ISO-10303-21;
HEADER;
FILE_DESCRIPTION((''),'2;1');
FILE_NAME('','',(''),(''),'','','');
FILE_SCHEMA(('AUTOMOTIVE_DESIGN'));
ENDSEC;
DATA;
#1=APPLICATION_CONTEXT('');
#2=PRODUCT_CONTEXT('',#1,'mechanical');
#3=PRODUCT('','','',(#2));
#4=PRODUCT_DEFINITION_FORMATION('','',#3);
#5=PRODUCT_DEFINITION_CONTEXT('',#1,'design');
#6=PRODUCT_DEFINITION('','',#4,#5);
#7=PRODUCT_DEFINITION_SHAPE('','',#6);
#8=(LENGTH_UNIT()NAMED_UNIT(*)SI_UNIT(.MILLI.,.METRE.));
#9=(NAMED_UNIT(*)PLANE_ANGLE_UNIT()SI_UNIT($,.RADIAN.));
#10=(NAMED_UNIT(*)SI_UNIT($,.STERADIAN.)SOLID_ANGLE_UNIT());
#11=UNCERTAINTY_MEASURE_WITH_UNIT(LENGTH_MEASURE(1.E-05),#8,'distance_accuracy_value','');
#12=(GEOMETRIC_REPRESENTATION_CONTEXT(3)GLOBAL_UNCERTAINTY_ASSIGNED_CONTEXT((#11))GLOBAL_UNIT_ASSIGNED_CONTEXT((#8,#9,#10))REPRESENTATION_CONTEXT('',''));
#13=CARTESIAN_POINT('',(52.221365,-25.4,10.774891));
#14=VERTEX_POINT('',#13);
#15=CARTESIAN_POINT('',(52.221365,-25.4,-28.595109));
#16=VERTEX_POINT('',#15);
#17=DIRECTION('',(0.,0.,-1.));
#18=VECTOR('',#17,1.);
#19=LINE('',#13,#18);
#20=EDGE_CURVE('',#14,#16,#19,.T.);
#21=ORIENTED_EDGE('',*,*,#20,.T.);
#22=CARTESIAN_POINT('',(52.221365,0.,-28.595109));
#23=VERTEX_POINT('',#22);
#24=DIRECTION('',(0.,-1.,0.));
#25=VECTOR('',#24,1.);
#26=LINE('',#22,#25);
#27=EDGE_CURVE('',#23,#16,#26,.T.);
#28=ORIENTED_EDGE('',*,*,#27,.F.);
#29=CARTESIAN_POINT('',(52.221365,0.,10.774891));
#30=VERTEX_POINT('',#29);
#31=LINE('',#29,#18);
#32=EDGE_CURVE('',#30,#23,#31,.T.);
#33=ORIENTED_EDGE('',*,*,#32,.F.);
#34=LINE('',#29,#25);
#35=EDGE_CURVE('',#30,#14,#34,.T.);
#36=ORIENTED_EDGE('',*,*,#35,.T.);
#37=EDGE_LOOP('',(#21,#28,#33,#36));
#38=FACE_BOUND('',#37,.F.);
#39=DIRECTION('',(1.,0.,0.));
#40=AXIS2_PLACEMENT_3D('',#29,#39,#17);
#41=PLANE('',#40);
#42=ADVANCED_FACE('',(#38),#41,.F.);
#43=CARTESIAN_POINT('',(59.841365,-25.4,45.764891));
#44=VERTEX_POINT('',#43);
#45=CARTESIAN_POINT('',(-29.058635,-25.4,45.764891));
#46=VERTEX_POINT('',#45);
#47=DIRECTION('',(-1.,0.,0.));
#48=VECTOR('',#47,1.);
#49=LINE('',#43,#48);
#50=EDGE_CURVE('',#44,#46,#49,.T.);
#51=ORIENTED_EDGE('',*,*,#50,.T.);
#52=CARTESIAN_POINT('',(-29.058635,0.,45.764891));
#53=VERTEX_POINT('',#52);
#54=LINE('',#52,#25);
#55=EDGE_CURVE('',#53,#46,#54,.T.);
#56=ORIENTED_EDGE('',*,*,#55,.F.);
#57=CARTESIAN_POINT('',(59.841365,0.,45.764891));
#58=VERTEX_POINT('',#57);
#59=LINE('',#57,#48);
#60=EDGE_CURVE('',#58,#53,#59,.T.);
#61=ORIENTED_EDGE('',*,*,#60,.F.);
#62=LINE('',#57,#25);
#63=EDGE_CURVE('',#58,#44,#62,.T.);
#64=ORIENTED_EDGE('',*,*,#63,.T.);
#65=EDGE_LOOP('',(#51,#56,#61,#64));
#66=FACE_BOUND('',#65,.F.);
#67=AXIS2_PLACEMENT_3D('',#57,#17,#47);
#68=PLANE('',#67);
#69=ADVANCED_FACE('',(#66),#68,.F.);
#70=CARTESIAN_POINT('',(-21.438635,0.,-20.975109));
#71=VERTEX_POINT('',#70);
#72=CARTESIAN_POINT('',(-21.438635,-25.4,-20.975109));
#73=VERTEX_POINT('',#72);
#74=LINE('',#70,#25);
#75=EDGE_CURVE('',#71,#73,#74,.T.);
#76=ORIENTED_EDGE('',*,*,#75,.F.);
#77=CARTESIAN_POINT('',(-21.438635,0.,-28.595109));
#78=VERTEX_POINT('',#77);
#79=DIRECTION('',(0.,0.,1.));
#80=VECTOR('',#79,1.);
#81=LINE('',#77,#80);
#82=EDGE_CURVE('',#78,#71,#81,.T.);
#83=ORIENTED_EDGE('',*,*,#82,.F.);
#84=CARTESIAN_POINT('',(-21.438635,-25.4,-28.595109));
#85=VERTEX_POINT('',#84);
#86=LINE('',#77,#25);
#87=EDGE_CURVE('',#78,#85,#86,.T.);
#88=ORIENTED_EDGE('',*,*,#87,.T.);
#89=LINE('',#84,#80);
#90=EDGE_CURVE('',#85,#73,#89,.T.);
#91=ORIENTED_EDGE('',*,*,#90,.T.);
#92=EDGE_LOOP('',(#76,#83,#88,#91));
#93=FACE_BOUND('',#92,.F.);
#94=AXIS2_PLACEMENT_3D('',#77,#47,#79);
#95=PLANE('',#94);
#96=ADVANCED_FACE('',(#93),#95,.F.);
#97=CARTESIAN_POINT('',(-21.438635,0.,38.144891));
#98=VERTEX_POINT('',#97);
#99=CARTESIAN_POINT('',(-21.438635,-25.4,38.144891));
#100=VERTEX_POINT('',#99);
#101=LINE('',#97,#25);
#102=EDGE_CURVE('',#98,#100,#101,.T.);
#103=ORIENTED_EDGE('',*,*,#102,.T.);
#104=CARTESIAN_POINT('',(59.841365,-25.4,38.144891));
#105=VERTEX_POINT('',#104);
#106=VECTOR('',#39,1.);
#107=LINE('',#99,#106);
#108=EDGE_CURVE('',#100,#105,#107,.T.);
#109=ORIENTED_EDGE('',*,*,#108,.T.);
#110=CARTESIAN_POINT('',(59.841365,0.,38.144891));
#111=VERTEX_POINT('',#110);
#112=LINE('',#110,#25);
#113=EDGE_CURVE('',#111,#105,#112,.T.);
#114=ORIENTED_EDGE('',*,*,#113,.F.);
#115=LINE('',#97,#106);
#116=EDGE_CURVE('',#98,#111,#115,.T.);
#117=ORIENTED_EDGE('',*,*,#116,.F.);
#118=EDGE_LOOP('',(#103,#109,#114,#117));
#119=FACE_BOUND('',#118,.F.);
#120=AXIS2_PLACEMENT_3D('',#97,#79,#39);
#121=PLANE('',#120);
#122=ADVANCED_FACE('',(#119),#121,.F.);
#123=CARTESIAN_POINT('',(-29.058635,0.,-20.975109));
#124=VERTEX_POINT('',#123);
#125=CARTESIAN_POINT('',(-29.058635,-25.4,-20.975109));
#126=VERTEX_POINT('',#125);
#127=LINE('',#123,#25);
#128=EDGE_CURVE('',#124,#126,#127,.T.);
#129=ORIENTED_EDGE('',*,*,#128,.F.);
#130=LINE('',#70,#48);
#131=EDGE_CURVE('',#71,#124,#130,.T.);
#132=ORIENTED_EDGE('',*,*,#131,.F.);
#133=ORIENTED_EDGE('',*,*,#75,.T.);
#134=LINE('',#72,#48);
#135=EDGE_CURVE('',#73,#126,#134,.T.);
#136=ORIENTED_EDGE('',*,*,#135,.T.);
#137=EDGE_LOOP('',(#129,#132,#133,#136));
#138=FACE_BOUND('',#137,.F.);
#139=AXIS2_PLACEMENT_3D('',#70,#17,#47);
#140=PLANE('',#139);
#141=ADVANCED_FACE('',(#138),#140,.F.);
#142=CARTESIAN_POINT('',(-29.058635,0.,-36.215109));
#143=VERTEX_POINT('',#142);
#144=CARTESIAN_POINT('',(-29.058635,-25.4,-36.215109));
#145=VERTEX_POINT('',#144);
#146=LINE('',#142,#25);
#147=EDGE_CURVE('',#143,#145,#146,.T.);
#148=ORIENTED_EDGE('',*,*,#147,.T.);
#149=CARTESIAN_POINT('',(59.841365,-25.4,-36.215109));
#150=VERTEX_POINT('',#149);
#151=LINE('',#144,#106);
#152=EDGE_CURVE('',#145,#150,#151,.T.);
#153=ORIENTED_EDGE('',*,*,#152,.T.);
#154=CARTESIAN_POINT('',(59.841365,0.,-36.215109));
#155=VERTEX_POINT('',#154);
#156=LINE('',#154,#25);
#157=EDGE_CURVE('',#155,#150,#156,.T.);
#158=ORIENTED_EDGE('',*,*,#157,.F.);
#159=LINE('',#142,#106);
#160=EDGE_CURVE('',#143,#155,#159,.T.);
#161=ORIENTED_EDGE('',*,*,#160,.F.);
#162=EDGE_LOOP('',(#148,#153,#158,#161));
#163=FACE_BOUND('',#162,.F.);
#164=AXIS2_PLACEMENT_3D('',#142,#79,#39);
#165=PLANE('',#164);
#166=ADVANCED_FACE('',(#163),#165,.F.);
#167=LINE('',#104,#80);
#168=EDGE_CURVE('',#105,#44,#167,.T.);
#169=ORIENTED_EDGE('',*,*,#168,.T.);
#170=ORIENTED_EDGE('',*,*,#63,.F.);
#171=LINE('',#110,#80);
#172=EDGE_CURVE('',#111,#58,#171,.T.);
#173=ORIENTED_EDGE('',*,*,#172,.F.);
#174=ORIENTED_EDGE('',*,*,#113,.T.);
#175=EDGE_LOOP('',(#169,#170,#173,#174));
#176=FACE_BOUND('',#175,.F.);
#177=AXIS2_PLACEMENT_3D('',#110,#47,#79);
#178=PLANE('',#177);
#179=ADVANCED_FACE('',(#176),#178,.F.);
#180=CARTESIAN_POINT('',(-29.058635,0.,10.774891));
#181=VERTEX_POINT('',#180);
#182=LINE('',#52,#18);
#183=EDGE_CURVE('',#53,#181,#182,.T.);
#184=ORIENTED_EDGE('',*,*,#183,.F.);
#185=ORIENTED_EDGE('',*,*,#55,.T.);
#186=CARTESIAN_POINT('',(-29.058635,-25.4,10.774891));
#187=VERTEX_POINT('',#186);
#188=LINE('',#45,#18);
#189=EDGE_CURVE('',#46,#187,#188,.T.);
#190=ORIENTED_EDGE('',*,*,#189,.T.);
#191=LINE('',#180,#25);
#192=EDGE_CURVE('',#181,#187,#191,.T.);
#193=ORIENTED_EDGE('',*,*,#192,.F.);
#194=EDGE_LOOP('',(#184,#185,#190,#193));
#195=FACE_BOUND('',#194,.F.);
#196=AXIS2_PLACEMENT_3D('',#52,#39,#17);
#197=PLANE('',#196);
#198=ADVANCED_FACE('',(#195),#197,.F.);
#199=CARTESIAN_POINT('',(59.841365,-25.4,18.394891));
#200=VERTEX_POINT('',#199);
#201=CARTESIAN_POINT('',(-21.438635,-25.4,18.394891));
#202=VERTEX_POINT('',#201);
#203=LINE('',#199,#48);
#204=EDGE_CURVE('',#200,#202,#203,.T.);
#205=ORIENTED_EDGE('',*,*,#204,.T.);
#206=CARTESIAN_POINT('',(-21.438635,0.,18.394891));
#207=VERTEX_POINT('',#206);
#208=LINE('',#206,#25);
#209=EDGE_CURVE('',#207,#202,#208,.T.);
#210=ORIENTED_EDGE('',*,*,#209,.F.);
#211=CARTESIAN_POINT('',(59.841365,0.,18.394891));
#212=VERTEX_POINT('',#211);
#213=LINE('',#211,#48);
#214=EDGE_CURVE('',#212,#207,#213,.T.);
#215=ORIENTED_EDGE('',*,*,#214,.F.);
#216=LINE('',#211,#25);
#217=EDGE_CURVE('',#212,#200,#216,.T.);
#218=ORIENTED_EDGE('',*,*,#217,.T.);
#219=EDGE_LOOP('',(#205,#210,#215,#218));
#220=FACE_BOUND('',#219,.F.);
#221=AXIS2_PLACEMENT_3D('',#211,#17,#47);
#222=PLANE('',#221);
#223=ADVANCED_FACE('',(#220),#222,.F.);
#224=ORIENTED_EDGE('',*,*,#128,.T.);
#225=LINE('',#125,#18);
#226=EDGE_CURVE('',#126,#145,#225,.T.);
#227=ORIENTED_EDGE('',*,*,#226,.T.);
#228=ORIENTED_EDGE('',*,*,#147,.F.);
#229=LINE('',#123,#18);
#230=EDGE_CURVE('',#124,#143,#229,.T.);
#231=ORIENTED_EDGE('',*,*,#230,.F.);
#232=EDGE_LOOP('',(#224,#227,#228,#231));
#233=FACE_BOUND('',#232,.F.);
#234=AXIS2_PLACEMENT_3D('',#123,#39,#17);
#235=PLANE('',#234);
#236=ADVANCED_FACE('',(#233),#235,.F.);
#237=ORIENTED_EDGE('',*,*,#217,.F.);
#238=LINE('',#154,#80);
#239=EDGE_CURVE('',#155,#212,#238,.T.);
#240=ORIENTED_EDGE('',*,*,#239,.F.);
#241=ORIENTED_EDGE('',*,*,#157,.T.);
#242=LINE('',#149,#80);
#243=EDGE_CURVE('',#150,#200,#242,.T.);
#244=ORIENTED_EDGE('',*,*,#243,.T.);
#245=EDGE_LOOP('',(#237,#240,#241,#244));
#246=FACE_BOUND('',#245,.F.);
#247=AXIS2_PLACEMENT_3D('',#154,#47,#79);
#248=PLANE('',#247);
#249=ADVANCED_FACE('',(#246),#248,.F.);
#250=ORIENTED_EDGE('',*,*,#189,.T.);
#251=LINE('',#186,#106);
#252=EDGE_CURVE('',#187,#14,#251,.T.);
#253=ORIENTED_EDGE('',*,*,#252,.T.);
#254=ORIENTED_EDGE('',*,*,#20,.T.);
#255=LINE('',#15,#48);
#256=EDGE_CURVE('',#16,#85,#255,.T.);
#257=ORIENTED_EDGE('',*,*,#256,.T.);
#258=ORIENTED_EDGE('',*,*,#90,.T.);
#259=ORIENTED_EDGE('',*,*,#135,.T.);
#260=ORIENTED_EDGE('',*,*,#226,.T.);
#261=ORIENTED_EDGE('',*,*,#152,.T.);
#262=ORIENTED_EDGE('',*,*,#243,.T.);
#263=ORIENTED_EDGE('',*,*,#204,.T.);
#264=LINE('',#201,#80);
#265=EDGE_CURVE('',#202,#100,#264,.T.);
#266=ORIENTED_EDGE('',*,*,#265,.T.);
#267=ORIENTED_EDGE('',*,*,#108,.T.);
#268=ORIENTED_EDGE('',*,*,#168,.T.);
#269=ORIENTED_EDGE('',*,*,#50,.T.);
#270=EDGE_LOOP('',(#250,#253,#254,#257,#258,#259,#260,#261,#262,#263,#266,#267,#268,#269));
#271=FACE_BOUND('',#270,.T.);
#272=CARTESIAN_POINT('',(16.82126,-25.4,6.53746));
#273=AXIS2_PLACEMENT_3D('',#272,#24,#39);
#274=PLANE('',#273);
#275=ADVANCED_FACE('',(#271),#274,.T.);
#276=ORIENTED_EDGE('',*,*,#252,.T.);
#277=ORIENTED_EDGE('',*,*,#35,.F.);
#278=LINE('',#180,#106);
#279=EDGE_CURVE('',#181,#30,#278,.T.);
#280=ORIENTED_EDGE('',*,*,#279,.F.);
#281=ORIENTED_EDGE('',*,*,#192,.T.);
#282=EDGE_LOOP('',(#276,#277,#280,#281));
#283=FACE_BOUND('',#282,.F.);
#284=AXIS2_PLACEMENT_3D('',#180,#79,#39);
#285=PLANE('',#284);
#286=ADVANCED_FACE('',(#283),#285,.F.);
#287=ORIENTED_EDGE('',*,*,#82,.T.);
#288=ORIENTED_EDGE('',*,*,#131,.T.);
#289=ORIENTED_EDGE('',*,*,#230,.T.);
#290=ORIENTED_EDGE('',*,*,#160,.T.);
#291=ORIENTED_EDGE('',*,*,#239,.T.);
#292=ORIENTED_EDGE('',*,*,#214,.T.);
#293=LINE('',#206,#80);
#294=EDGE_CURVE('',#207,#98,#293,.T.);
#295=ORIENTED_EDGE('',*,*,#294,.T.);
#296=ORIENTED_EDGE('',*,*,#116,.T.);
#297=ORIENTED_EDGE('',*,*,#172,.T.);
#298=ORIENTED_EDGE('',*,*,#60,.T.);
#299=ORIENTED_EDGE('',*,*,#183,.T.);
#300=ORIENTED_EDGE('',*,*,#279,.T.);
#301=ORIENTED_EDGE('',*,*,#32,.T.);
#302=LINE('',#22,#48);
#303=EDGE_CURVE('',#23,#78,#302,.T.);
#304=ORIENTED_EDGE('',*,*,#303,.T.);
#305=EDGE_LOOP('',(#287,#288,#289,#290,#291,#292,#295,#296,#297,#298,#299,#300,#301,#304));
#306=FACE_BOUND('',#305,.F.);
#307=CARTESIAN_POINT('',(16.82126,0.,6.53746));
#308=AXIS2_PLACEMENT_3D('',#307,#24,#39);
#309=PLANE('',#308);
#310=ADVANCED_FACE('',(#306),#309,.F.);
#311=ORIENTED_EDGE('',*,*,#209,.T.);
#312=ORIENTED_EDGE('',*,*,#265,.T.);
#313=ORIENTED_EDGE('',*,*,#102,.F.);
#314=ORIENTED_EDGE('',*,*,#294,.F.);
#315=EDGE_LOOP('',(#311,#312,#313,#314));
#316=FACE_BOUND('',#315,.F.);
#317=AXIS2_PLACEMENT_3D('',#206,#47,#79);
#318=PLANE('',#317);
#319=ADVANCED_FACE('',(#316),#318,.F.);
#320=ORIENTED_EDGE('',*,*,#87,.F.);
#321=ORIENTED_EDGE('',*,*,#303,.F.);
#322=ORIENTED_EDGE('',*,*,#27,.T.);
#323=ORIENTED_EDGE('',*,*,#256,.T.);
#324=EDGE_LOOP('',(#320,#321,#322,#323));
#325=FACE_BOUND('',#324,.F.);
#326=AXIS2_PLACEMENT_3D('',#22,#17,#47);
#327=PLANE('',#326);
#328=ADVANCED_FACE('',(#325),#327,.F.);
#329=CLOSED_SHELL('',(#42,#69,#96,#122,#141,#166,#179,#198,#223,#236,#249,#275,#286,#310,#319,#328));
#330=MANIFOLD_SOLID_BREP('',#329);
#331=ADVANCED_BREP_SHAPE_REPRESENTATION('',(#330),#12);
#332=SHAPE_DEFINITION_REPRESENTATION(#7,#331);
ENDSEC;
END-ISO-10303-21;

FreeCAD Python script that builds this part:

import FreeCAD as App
import Part
import Sketcher

V = App.Vector
Q = App.Units.Quantity


def add_polygon(sketch, points):
    """Adds a closed chain of lines whose ends are joined by coincident constraints."""
    first, n = sketch.GeometryCount, len(points)
    for a, b in zip(points, points[1:] + points[:1]):
        sketch.addGeometry(Part.LineSegment(App.Vector(*a, 0), App.Vector(*b, 0)), False)
    for i in range(n):
        sketch.addConstraint(Sketcher.Constraint("Coincident", first + i, 2, first + (i + 1) % n, 1))

doc = App.newDocument("Part")
body = doc.addObject("PartDesign::Body", "Body")

sketch1 = body.newObject("Sketcher::SketchObject", "Sketch")
sketch1.AttachmentSupport = (doc.getObject("XZ_Plane"), [""])
sketch1.MapMode = "FlatFace"
add_polygon(sketch1, [(59.841365, 38.144891), (59.841365, 45.764891), (-29.058635, 45.764891), (-29.058635, 10.774891), (52.221365, 10.774891), (52.221365, -28.595109), (-21.438635, -28.595109), (-21.438635, -20.975109), (-29.058635, -20.975109), (-29.058635, -36.215109), (59.841365, -36.215109), (59.841365, 18.394891), (-21.438635, 18.394891), (-21.438635, 38.144891)])
sketch1.addConstraint([
    Sketcher.Constraint("Vertical", 0),
    Sketcher.Constraint("Horizontal", 1),
    Sketcher.Constraint("Vertical", 2),
    Sketcher.Constraint("Horizontal", 3),
    Sketcher.Constraint("Vertical", 4),
    Sketcher.Constraint("Horizontal", 5),
    Sketcher.Constraint("Vertical", 6),
    Sketcher.Constraint("Horizontal", 7),
    Sketcher.Constraint("Vertical", 8),
    Sketcher.Constraint("Horizontal", 9),
    Sketcher.Constraint("Vertical", 10),
    Sketcher.Constraint("Horizontal", 11),
    Sketcher.Constraint("Vertical", 12),
    Sketcher.Constraint("Horizontal", 13),
    Sketcher.Constraint("Vertical", 2, 2, 7, 2),
    Sketcher.Constraint("Vertical", 0, 2, 9, 2),
    Sketcher.Constraint("Vertical", 6, 2, 11, 2),
    Sketcher.Constraint("Equal", 3, 11),
    Sketcher.Constraint("Equal", 7, 0),
    Sketcher.Constraint("Equal", 0, 6),
    Sketcher.Constraint("DistanceX", 1, 2, 1, 1, Q("3.5 in")),
    Sketcher.Constraint("DistanceX", 3, 1, 3, 2, Q("3.2 in")),
    Sketcher.Constraint("DistanceY", 8, 2, 8, 1, Q("0.6 in")),
    Sketcher.Constraint("DistanceY", 4, 2, 4, 1, Q("1.55 in")),
    Sketcher.Constraint("DistanceY", 10, 1, 10, 2, Q("2.15 in")),
    Sketcher.Constraint("DistanceY", 2, 2, 2, 1, 34.99),
    Sketcher.Constraint("DistanceY", -1, 1, 0, 2, 45.764891),
    Sketcher.Constraint("DistanceX", -1, 1, 0, 2, 59.841365),
])
pad1 = body.newObject("PartDesign::Pad", "Pad")
pad1.Profile = sketch1
pad1.Length = Q("1 in")

doc.recompute()
